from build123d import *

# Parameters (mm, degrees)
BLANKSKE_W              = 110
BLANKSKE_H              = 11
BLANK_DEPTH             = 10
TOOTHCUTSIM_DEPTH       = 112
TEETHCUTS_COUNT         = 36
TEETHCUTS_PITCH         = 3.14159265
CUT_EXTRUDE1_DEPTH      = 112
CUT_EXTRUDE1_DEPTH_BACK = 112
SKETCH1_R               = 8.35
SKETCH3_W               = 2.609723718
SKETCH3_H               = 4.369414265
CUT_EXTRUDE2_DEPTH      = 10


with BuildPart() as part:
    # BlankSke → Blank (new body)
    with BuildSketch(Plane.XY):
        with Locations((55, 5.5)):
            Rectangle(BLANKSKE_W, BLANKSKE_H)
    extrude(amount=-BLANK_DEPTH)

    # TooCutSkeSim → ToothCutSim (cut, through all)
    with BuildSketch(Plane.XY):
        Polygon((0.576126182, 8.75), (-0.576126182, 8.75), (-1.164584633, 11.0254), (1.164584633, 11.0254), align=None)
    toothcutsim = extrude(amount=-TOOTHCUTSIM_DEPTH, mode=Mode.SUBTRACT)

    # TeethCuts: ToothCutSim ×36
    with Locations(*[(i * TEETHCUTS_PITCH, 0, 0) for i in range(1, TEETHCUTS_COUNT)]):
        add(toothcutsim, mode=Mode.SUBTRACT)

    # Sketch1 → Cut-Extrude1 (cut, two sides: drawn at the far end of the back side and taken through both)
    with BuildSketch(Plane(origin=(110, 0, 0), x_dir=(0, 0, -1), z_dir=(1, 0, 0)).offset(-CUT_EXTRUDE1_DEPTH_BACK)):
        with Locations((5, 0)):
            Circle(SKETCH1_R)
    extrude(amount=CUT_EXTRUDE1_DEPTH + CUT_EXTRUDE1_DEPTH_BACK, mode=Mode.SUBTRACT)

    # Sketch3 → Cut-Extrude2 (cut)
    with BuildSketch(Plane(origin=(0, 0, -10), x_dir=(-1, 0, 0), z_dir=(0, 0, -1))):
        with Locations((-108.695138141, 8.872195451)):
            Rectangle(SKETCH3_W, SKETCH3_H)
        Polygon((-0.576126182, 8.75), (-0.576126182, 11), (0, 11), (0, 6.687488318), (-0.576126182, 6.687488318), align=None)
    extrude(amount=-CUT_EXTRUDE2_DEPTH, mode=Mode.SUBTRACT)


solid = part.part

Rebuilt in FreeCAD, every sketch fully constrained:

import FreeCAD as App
import Part
import Sketcher

V = App.Vector
Q = App.Units.Quantity


def add_polygon(sketch, points):
    """Adds a closed chain of lines whose ends are joined by coincident constraints."""
    first, n = sketch.GeometryCount, len(points)
    for a, b in zip(points, points[1:] + points[:1]):
        sketch.addGeometry(Part.LineSegment(App.Vector(*a, 0), App.Vector(*b, 0)), False)
    for i in range(n):
        sketch.addConstraint(Sketcher.Constraint("Coincident", first + i, 2, first + (i + 1) % n, 1))

doc = App.newDocument("Part")
body = doc.addObject("PartDesign::Body", "Body")

# Sketch on XY plane
sketch1 = doc.addObject("Sketcher::SketchObject", "Sketch")
body.addObject(sketch1)
sketch1.AttachmentSupport = (doc.XY_Plane, [""])
sketch1.MapMode = "FlatFace"
add_polygon(sketch1, [(0, 11), (0, 0), (110, 0), (110, 11)])  # lines 0-3
sketch1.addConstraint([
    Sketcher.Constraint("Vertical", 0),
    Sketcher.Constraint("Horizontal", 1),
    Sketcher.Constraint("Vertical", 2),
    Sketcher.Constraint("Horizontal", 3),
    Sketcher.Constraint("Coincident", 0, 2, -1, 1),
    Sketcher.Constraint("DistanceX", 1, 1, 1, 2, 110.0),
    Sketcher.Constraint("DistanceY", 0, 2, 0, 1, 11.0),
])
pad1 = doc.addObject("PartDesign::Pad", "Pad")
body.addObject(pad1)
pad1.Profile = sketch1
pad1.Length = 10
pad1.Reversed = True

# Sketch on XY plane
sketch2 = doc.addObject("Sketcher::SketchObject", "Sketch001")
body.addObject(sketch2)
sketch2.AttachmentSupport = (doc.XY_Plane, [""])
sketch2.MapMode = "FlatFace"
add_polygon(sketch2, [(-0.6, 8.8), (0.6, 8.8), (1.2, 11), (-1.2, 11)])  # lines 0-3
sketch2.addConstraint([
    Sketcher.Constraint("Horizontal", 0),
    Sketcher.Constraint("Horizontal", 2),
    Sketcher.Constraint("Equal", 1, 3),
    Sketcher.Constraint("Angle", 1, Q("75.5 deg")),
    Sketcher.Constraint("DistanceY", -1, 1, 0, 2, 8.75),
    Sketcher.Constraint("DistanceX", 2, 2, 2, 1, 2.329169),
    Sketcher.Constraint("DistanceY", -1, 1, 1, 2, 11.0254),
    Sketcher.Constraint("DistanceX", -1, 1, 0, 2, 0.576126),
])
pocket1 = doc.addObject("PartDesign::Pocket", "Pocket")
body.addObject(pocket1)
pocket1.Profile = sketch2
pocket1.Type = "ThroughAll"
doc.recompute()

linearpattern = doc.addObject("PartDesign::LinearPattern", "LinearPattern")
body.addObject(linearpattern)
linearpattern.Originals = [pocket1]
linearpattern.Direction = (doc.X_Axis, [""])
linearpattern.Mode = "offset"
linearpattern.Offset = 3.141593
linearpattern.Occurrences = 36
body.Tip = linearpattern

# Sketch on YZ plane
sketch3 = doc.addObject("Sketcher::SketchObject", "Sketch002")
body.addObject(sketch3)
sketch3.AttachmentSupport = (doc.YZ_Plane, [""])
sketch3.MapMode = "FlatFace"
sketch3.AttachmentOffset = App.Placement(V(0, 0, 110), App.Rotation())
sketch3.addGeometry(Part.Circle(V(0, -5, 0), V(0, 0, 1), 8), False)
sketch3.addConstraint([
    Sketcher.Constraint("PointOnObject", 0, 3, -2),
    Sketcher.Constraint("Diameter", 0, 16.7),
    Sketcher.Constraint("DistanceY", 0, 3, -1, 1, 5.0),
])
pocket2 = doc.addObject("PartDesign::Pocket", "Pocket001")
body.addObject(pocket2)
pocket2.Profile = sketch3
pocket2.Type = "ThroughAll"
pocket2.Midplane = True

# Sketch on XY plane
sketch4 = doc.addObject("Sketcher::SketchObject", "Sketch003")
body.addObject(sketch4)
sketch4.AttachmentSupport = (doc.XY_Plane, [""])
sketch4.MapMode = "FlatFace"
sketch4.AttachmentOffset = App.Placement(V(0, 0, -10), App.Rotation())
add_polygon(sketch4, [(110, 11.1), (110, 6.7), (107.4, 6.7), (107.4, 11.1)])  # lines 0-3
add_polygon(sketch4, [(0.6, 11), (0.6, 6.7), (0, 6.7), (0, 11)])  # lines 4-7
sketch4.addConstraint([
    Sketcher.Constraint("Vertical", 0),
    Sketcher.Constraint("Horizontal", 1),
    Sketcher.Constraint("Vertical", 2),
    Sketcher.Constraint("Horizontal", 3),
    Sketcher.Constraint("Vertical", 4),
    Sketcher.Constraint("Horizontal", 5),
    Sketcher.Constraint("Vertical", 6),
    Sketcher.Constraint("Horizontal", 7),
    Sketcher.Constraint("PointOnObject", 5, 2, -2),
    Sketcher.Constraint("Horizontal", 1, 2, 4, 2),
    Sketcher.Constraint("DistanceX", -1, 1, 0, 2, 110.0),
    Sketcher.Constraint("DistanceY", -1, 1, 6, 2, 11.0),
    Sketcher.Constraint("DistanceY", 4, 2, 4, 1, 4.312512),
    Sketcher.Constraint("DistanceX", 1, 2, 1, 1, 2.609724),
    Sketcher.Constraint("DistanceX", 5, 2, 5, 1, 0.576126),
    Sketcher.Constraint("DistanceY", 0, 2, 0, 1, 4.369414),
])
pocket3 = doc.addObject("PartDesign::Pocket", "Pocket002")
body.addObject(pocket3)
pocket3.Profile = sketch4
pocket3.Length = 10
pocket3.Reversed = True

doc.recompute()
